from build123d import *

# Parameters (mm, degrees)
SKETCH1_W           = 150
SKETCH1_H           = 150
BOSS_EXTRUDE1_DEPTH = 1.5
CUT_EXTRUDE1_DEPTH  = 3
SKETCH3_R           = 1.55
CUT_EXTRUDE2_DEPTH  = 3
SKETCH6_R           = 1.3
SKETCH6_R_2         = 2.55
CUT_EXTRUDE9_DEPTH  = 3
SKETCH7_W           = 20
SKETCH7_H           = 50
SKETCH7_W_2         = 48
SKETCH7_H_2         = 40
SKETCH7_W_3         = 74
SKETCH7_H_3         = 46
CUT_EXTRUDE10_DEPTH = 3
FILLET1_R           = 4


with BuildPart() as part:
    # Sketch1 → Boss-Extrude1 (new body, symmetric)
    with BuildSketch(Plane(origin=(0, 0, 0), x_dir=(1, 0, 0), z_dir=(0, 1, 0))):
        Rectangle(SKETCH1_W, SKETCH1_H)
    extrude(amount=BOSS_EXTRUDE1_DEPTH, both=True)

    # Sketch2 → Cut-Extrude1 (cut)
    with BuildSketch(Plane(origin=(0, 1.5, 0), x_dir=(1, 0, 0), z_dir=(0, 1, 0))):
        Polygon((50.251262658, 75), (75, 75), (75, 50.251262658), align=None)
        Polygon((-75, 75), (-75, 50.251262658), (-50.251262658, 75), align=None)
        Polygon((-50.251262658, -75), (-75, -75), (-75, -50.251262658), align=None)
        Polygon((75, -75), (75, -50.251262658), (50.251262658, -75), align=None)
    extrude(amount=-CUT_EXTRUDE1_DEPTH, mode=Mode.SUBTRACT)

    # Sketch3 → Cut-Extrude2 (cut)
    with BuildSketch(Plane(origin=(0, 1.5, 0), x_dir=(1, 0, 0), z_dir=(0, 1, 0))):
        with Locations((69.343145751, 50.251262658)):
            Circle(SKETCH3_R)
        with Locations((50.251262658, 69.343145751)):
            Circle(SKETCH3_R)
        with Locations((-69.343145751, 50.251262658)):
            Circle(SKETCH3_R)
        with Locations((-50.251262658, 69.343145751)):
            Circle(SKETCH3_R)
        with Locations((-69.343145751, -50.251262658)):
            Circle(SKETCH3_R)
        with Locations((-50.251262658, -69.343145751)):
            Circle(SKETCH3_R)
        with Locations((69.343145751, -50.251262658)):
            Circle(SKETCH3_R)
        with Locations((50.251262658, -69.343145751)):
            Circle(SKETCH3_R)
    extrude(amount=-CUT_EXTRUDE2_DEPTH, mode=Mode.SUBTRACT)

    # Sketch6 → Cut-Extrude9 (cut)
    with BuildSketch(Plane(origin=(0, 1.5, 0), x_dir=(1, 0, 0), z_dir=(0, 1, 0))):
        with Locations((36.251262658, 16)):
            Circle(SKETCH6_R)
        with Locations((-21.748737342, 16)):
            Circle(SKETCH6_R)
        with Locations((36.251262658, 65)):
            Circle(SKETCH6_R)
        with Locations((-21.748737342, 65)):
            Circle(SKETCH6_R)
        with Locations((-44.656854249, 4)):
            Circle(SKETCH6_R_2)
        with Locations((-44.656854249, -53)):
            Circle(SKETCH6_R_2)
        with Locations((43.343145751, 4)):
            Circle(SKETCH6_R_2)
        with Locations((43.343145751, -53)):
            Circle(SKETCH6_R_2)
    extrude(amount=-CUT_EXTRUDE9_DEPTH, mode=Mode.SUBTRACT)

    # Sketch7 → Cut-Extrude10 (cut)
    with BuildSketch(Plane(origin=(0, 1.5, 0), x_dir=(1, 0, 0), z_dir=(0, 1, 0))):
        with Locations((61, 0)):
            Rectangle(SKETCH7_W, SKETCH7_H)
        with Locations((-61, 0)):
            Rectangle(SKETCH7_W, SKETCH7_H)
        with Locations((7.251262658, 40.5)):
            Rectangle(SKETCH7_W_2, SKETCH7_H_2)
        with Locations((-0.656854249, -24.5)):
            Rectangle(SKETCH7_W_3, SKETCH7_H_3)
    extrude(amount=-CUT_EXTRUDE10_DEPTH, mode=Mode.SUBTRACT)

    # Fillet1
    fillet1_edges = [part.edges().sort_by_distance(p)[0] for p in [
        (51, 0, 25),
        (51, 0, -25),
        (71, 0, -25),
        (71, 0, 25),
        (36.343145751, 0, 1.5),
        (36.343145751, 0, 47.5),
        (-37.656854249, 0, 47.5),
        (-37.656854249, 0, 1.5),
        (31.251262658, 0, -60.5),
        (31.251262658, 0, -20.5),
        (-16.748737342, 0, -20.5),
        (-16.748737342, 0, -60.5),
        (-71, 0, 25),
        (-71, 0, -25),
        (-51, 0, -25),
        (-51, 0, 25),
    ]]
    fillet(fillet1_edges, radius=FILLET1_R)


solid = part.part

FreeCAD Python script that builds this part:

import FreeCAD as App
import Part
import Sketcher


def edges_at(feature, points):
    """Names of the edges that pass closest to the given points."""
    edges = feature.Shape.Edges
    near = lambda p: min(range(len(edges)), key=lambda i: edges[i].distToShape(Part.Vertex(*p))[0])
    return sorted({f"Edge{near(p) + 1}" for p in points})


def add_polygon(sketch, points):
    """Adds a closed chain of lines whose ends are joined by coincident constraints."""
    first, n = sketch.GeometryCount, len(points)
    for a, b in zip(points, points[1:] + points[:1]):
        sketch.addGeometry(Part.LineSegment(App.Vector(*a, 0), App.Vector(*b, 0)), False)
    for i in range(n):
        sketch.addConstraint(Sketcher.Constraint("Coincident", first + i, 2, first + (i + 1) % n, 1))

doc = App.newDocument("Part")
body = doc.addObject("PartDesign::Body", "Body")

# Sketch on XZ plane
sketch1 = body.newObject("Sketcher::SketchObject", "Sketch")
sketch1.AttachmentSupport = (doc.getObject("XZ_Plane"), [""])
sketch1.MapMode = "FlatFace"
add_polygon(sketch1, [(-75, -75), (-75, 75), (75, 75), (75, -75)])  # lines 0-3
sketch1.addConstraint(Sketcher.Constraint("Vertical", 0))
sketch1.addConstraint(Sketcher.Constraint("Horizontal", 1))
sketch1.addConstraint(Sketcher.Constraint("Vertical", 2))
sketch1.addConstraint(Sketcher.Constraint("Horizontal", 3))
sketch1.addConstraint(Sketcher.Constraint("Symmetric", 0, 2, 2, 2, -1, 1))
sketch1.addConstraint(Sketcher.Constraint("Equal", 3, 0))
sketch1.addConstraint(Sketcher.Constraint("DistanceX", 1, 1, 1, 2, 150.0))
pad1 = body.newObject("PartDesign::Pad", "Pad")
pad1.Profile = sketch1
pad1.Length = 3
pad1.Midplane = True

# Sketch on XZ plane
sketch2 = body.newObject("Sketcher::SketchObject", "Sketch001")
sketch2.AttachmentSupport = (doc.getObject("XZ_Plane"), [""])
sketch2.MapMode = "FlatFace"
sketch2.AttachmentOffset = App.Placement(App.Vector(0, 0, -1.5), App.Rotation())
add_polygon(sketch2, [(75, -75), (50, -75), (75, -50)])  # lines 0-2
add_polygon(sketch2, [(-75, -75), (-75, -50), (-50, -75)])  # lines 3-5
add_polygon(sketch2, [(-75, 75), (-50, 75), (-75, 50)])  # lines 6-8
add_polygon(sketch2, [(75, 75), (75, 50), (50, 75)])  # lines 9-11
sketch2.addConstraint(Sketcher.Constraint("Horizontal", 0))
sketch2.addConstraint(Sketcher.Constraint("Vertical", 2))
sketch2.addConstraint(Sketcher.Constraint("Vertical", 3))
sketch2.addConstraint(Sketcher.Constraint("Horizontal", 5))
sketch2.addConstraint(Sketcher.Constraint("Horizontal", 6))
sketch2.addConstraint(Sketcher.Constraint("Vertical", 8))
sketch2.addConstraint(Sketcher.Constraint("Vertical", 9))
sketch2.addConstraint(Sketcher.Constraint("Horizontal", 11))
sketch2.addConstraint(Sketcher.Constraint("Symmetric", 0, 2, 6, 2, -1, 1))
sketch2.addConstraint(Sketcher.Constraint("Symmetric", 1, 2, 7, 2, -1, 1))
sketch2.addConstraint(Sketcher.Constraint("Symmetric", 3, 2, 9, 2, -1, 1))
sketch2.addConstraint(Sketcher.Constraint("Symmetric", 4, 2, 10, 2, -1, 1))
sketch2.addConstraint(Sketcher.Constraint("Symmetric", 1, 2, 3, 2, -2))
sketch2.addConstraint(Sketcher.Constraint("Symmetric", 0, 2, 4, 2, -2))
sketch2.addConstraint(Sketcher.Constraint("Perpendicular", 1, 4))
sketch2.addConstraint(Sketcher.Constraint("Distance", 1, 35.0))
sketch2.addConstraint(Sketcher.Constraint("DistanceY", 0, 2, -1, 1, 75.0))
sketch2.addConstraint(Sketcher.Constraint("DistanceX", -1, 1, 1, 2, 75.0))
pocket1 = body.newObject("PartDesign::Pocket", "Pocket")
pocket1.Profile = sketch2
pocket1.Length = 3
pocket1.Reversed = True

# Sketch on XZ plane
sketch3 = body.newObject("Sketcher::SketchObject", "Sketch002")
sketch3.AttachmentSupport = (doc.getObject("XZ_Plane"), [""])
sketch3.MapMode = "FlatFace"
sketch3.AttachmentOffset = App.Placement(App.Vector(0, 0, -1.5), App.Rotation())
sketch3.addGeometry(Part.Circle(App.Vector(69.3, -50.3, 0), App.Vector(0, 0, 1), 1.6), False)
sketch3.addGeometry(Part.Circle(App.Vector(50.3, -69.3, 0), App.Vector(0, 0, 1), 1.6), False)
sketch3.addGeometry(Part.Circle(App.Vector(-69.3, -50.3, 0), App.Vector(0, 0, 1), 1.6), False)
sketch3.addGeometry(Part.Circle(App.Vector(-50.3, -69.3, 0), App.Vector(0, 0, 1), 1.6), False)
sketch3.addGeometry(Part.Circle(App.Vector(-69.3, 50.3, 0), App.Vector(0, 0, 1), 1.6), False)
sketch3.addGeometry(Part.Circle(App.Vector(-50.3, 69.3, 0), App.Vector(0, 0, 1), 1.6), False)
sketch3.addGeometry(Part.Circle(App.Vector(69.3, 50.3, 0), App.Vector(0, 0, 1), 1.6), False)
sketch3.addGeometry(Part.Circle(App.Vector(50.3, 69.3, 0), App.Vector(0, 0, 1), 1.6), False)
sketch3.addConstraint(Sketcher.Constraint("Equal", 0, 1))
sketch3.addConstraint(Sketcher.Constraint("Equal", 1, 2))
sketch3.addConstraint(Sketcher.Constraint("Equal", 2, 3))
sketch3.addConstraint(Sketcher.Constraint("Equal", 3, 4))
sketch3.addConstraint(Sketcher.Constraint("Equal", 4, 5))
sketch3.addConstraint(Sketcher.Constraint("Equal", 5, 6))
sketch3.addConstraint(Sketcher.Constraint("Equal", 6, 7))
sketch3.addConstraint(Sketcher.Constraint("Symmetric", 0, 3, 4, 3, -1, 1))
sketch3.addConstraint(Sketcher.Constraint("Symmetric", 1, 3, 5, 3, -1, 1))
sketch3.addConstraint(Sketcher.Constraint("Symmetric", 2, 3, 6, 3, -1, 1))
sketch3.addConstraint(Sketcher.Constraint("Symmetric", 3, 3, 7, 3, -1, 1))
sketch3.addConstraint(Sketcher.Constraint("Symmetric", 0, 3, 2, 3, -2))
sketch3.addConstraint(Sketcher.Constraint("Symmetric", 1, 3, 3, 3, -2))
sketch3.addConstraint(Sketcher.Constraint("Diameter", 0, 3.1))
sketch3.addConstraint(Sketcher.Constraint("DistanceX", 2, 3, 1, 3, 119.594408))
sketch3.addConstraint(Sketcher.Constraint("DistanceX", 2, 3, 0, 3, 138.686292))
sketch3.addConstraint(Sketcher.Constraint("DistanceY", 3, 3, 4, 3, 119.594408))
sketch3.addConstraint(Sketcher.Constraint("DistanceY", 3, 3, 5, 3, 138.686292))
pocket2 = body.newObject("PartDesign::Pocket", "Pocket001")
pocket2.Profile = sketch3
pocket2.Length = 3
pocket2.Reversed = True

# Sketch on XZ plane
sketch4 = body.newObject("Sketcher::SketchObject", "Sketch003")
sketch4.AttachmentSupport = (doc.getObject("XZ_Plane"), [""])
sketch4.MapMode = "FlatFace"
sketch4.AttachmentOffset = App.Placement(App.Vector(0, 0, -1.5), App.Rotation())
sketch4.addGeometry(Part.Circle(App.Vector(36.3, -16, 0), App.Vector(0, 0, 1), 1.3), False)
sketch4.addGeometry(Part.Circle(App.Vector(-21.7, -16, 0), App.Vector(0, 0, 1), 1.3), False)
sketch4.addGeometry(Part.Circle(App.Vector(36.3, -65, 0), App.Vector(0, 0, 1), 1.3), False)
sketch4.addGeometry(Part.Circle(App.Vector(-21.7, -65, 0), App.Vector(0, 0, 1), 1.3), False)
sketch4.addGeometry(Part.Circle(App.Vector(-44.7, -4, 0), App.Vector(0, 0, 1), 2.5), False)
sketch4.addGeometry(Part.Circle(App.Vector(-44.7, 53, 0), App.Vector(0, 0, 1), 2.5), False)
sketch4.addGeometry(Part.Circle(App.Vector(43.3, -4, 0), App.Vector(0, 0, 1), 2.5), False)
sketch4.addGeometry(Part.Circle(App.Vector(43.3, 53, 0), App.Vector(0, 0, 1), 2.5), False)
sketch4.addConstraint(Sketcher.Constraint("Equal", 0, 1))
sketch4.addConstraint(Sketcher.Constraint("Equal", 1, 2))
sketch4.addConstraint(Sketcher.Constraint("Equal", 2, 3))
sketch4.addConstraint(Sketcher.Constraint("Equal", 4, 5))
sketch4.addConstraint(Sketcher.Constraint("Equal", 5, 6))
sketch4.addConstraint(Sketcher.Constraint("Equal", 6, 7))
sketch4.addConstraint(Sketcher.Constraint("Horizontal", 0, 3, 1, 3))
sketch4.addConstraint(Sketcher.Constraint("Horizontal", 2, 3, 3, 3))
sketch4.addConstraint(Sketcher.Constraint("Horizontal", 4, 3, 6, 3))
sketch4.addConstraint(Sketcher.Constraint("Horizontal", 5, 3, 7, 3))
sketch4.addConstraint(Sketcher.Constraint("Vertical", 0, 3, 2, 3))
sketch4.addConstraint(Sketcher.Constraint("Vertical", 1, 3, 3, 3))
sketch4.addConstraint(Sketcher.Constraint("Vertical", 4, 3, 5, 3))
sketch4.addConstraint(Sketcher.Constraint("Vertical", 6, 3, 7, 3))
sketch4.addConstraint(Sketcher.Constraint("Diameter", 0, 2.6))
sketch4.addConstraint(Sketcher.Constraint("Diameter", 4, 5.1))
sketch4.addConstraint(Sketcher.Constraint("DistanceY", 0, 3, -1, 1, 16.0))
sketch4.addConstraint(Sketcher.Constraint("DistanceY", 2, 3, -1, 1, 65.0))
sketch4.addConstraint(Sketcher.Constraint("DistanceY", 4, 3, -1, 1, 4.0))
sketch4.addConstraint(Sketcher.Constraint("DistanceY", -1, 1, 5, 3, 53.0))
sketch4.addConstraint(Sketcher.Constraint("DistanceX", 1, 3, 0, 3, 58.0))
sketch4.addConstraint(Sketcher.Constraint("DistanceX", 4, 3, 6, 3, 88.0))
sketch4.addConstraint(Sketcher.Constraint("DistanceX", -1, 1, 0, 3, 36.251263))
sketch4.addConstraint(Sketcher.Constraint("DistanceX", 4, 3, -1, 1, 44.656854))
pocket3 = body.newObject("PartDesign::Pocket", "Pocket002")
pocket3.Profile = sketch4
pocket3.Length = 3
pocket3.Reversed = True

# Sketch on XZ plane
sketch5 = body.newObject("Sketcher::SketchObject", "Sketch004")
sketch5.AttachmentSupport = (doc.getObject("XZ_Plane"), [""])
sketch5.MapMode = "FlatFace"
sketch5.AttachmentOffset = App.Placement(App.Vector(0, 0, -1.5), App.Rotation())
add_polygon(sketch5, [(51, -25), (51, 25), (71, 25), (71, -25)])  # lines 0-3
add_polygon(sketch5, [(-71, -25), (-71, 25), (-51, 25), (-51, -25)])  # lines 4-7
add_polygon(sketch5, [(-17, -60), (-17, -20), (31, -20), (31, -60)])  # lines 8-11
add_polygon(sketch5, [(-38, 2), (-38, 48), (36, 48), (36, 2)])  # lines 12-15
sketch5.addConstraint(Sketcher.Constraint("Vertical", 0))
sketch5.addConstraint(Sketcher.Constraint("Horizontal", 1))
sketch5.addConstraint(Sketcher.Constraint("Vertical", 2))
sketch5.addConstraint(Sketcher.Constraint("Horizontal", 3))
sketch5.addConstraint(Sketcher.Constraint("Vertical", 4))
sketch5.addConstraint(Sketcher.Constraint("Horizontal", 5))
sketch5.addConstraint(Sketcher.Constraint("Vertical", 6))
sketch5.addConstraint(Sketcher.Constraint("Horizontal", 7))
sketch5.addConstraint(Sketcher.Constraint("Vertical", 8))
sketch5.addConstraint(Sketcher.Constraint("Horizontal", 9))
sketch5.addConstraint(Sketcher.Constraint("Vertical", 10))
sketch5.addConstraint(Sketcher.Constraint("Horizontal", 11))
sketch5.addConstraint(Sketcher.Constraint("Vertical", 12))
sketch5.addConstraint(Sketcher.Constraint("Horizontal", 13))
sketch5.addConstraint(Sketcher.Constraint("Vertical", 14))
sketch5.addConstraint(Sketcher.Constraint("Horizontal", 15))
sketch5.addConstraint(Sketcher.Constraint("Symmetric", 2, 2, 4, 2, -1, 1))
sketch5.addConstraint(Sketcher.Constraint("Symmetric", 0, 2, 6, 2, -1, 1))
sketch5.addConstraint(Sketcher.Constraint("Horizontal", 1, 2, 4, 2))
sketch5.addConstraint(Sketcher.Constraint("DistanceX", 1, 1, 1, 2, 20.0))
sketch5.addConstraint(Sketcher.Constraint("DistanceX", 9, 1, 9, 2, 48.0))
sketch5.addConstraint(Sketcher.Constraint("DistanceX", 13, 1, 13, 2, 74.0))
sketch5.addConstraint(Sketcher.Constraint("DistanceY", 0, 1, 0, 2, 50.0))
sketch5.addConstraint(Sketcher.Constraint("DistanceY", 8, 1, 8, 2, 40.0))
sketch5.addConstraint(Sketcher.Constraint("DistanceY", 12, 1, 12, 2, 46.0))
sketch5.addConstraint(Sketcher.Constraint("DistanceX", -1, 1, 0, 2, 51.0))
sketch5.addConstraint(Sketcher.Constraint("DistanceY", 8, 2, 12, 2, 68.0))
sketch5.addConstraint(Sketcher.Constraint("DistanceY", 8, 2, -1, 1, 20.5))
sketch5.addConstraint(Sketcher.Constraint("DistanceX", 8, 2, -1, 1, 16.748737))
sketch5.addConstraint(Sketcher.Constraint("DistanceX", 12, 2, -1, 1, 37.656854))
pocket4 = body.newObject("PartDesign::Pocket", "Pocket003")
pocket4.Profile = sketch5
pocket4.Length = 3
pocket4.Reversed = True
doc.recompute()

fillet = body.newObject("PartDesign::Fillet", "Fillet")
fillet.Base = (pocket4, edges_at(pocket4, [
    (51, 0, 25),
    (51, 0, -25),
    (71, 0, -25),
    (71, 0, 25),
    (36.343, 0, 1.5),
    (36.343, 0, 47.5),
    (-37.657, 0, 47.5),
    (-37.657, 0, 1.5),
    (31.251, 0, -60.5),
    (31.251, 0, -20.5),
    (-16.749, 0, -20.5),
    (-16.749, 0, -60.5),
    (-71, 0, 25),
    (-71, 0, -25),
    (-51, 0, -25),
    (-51, 0, 25),
]))
fillet.Radius = 4

doc.recompute()
